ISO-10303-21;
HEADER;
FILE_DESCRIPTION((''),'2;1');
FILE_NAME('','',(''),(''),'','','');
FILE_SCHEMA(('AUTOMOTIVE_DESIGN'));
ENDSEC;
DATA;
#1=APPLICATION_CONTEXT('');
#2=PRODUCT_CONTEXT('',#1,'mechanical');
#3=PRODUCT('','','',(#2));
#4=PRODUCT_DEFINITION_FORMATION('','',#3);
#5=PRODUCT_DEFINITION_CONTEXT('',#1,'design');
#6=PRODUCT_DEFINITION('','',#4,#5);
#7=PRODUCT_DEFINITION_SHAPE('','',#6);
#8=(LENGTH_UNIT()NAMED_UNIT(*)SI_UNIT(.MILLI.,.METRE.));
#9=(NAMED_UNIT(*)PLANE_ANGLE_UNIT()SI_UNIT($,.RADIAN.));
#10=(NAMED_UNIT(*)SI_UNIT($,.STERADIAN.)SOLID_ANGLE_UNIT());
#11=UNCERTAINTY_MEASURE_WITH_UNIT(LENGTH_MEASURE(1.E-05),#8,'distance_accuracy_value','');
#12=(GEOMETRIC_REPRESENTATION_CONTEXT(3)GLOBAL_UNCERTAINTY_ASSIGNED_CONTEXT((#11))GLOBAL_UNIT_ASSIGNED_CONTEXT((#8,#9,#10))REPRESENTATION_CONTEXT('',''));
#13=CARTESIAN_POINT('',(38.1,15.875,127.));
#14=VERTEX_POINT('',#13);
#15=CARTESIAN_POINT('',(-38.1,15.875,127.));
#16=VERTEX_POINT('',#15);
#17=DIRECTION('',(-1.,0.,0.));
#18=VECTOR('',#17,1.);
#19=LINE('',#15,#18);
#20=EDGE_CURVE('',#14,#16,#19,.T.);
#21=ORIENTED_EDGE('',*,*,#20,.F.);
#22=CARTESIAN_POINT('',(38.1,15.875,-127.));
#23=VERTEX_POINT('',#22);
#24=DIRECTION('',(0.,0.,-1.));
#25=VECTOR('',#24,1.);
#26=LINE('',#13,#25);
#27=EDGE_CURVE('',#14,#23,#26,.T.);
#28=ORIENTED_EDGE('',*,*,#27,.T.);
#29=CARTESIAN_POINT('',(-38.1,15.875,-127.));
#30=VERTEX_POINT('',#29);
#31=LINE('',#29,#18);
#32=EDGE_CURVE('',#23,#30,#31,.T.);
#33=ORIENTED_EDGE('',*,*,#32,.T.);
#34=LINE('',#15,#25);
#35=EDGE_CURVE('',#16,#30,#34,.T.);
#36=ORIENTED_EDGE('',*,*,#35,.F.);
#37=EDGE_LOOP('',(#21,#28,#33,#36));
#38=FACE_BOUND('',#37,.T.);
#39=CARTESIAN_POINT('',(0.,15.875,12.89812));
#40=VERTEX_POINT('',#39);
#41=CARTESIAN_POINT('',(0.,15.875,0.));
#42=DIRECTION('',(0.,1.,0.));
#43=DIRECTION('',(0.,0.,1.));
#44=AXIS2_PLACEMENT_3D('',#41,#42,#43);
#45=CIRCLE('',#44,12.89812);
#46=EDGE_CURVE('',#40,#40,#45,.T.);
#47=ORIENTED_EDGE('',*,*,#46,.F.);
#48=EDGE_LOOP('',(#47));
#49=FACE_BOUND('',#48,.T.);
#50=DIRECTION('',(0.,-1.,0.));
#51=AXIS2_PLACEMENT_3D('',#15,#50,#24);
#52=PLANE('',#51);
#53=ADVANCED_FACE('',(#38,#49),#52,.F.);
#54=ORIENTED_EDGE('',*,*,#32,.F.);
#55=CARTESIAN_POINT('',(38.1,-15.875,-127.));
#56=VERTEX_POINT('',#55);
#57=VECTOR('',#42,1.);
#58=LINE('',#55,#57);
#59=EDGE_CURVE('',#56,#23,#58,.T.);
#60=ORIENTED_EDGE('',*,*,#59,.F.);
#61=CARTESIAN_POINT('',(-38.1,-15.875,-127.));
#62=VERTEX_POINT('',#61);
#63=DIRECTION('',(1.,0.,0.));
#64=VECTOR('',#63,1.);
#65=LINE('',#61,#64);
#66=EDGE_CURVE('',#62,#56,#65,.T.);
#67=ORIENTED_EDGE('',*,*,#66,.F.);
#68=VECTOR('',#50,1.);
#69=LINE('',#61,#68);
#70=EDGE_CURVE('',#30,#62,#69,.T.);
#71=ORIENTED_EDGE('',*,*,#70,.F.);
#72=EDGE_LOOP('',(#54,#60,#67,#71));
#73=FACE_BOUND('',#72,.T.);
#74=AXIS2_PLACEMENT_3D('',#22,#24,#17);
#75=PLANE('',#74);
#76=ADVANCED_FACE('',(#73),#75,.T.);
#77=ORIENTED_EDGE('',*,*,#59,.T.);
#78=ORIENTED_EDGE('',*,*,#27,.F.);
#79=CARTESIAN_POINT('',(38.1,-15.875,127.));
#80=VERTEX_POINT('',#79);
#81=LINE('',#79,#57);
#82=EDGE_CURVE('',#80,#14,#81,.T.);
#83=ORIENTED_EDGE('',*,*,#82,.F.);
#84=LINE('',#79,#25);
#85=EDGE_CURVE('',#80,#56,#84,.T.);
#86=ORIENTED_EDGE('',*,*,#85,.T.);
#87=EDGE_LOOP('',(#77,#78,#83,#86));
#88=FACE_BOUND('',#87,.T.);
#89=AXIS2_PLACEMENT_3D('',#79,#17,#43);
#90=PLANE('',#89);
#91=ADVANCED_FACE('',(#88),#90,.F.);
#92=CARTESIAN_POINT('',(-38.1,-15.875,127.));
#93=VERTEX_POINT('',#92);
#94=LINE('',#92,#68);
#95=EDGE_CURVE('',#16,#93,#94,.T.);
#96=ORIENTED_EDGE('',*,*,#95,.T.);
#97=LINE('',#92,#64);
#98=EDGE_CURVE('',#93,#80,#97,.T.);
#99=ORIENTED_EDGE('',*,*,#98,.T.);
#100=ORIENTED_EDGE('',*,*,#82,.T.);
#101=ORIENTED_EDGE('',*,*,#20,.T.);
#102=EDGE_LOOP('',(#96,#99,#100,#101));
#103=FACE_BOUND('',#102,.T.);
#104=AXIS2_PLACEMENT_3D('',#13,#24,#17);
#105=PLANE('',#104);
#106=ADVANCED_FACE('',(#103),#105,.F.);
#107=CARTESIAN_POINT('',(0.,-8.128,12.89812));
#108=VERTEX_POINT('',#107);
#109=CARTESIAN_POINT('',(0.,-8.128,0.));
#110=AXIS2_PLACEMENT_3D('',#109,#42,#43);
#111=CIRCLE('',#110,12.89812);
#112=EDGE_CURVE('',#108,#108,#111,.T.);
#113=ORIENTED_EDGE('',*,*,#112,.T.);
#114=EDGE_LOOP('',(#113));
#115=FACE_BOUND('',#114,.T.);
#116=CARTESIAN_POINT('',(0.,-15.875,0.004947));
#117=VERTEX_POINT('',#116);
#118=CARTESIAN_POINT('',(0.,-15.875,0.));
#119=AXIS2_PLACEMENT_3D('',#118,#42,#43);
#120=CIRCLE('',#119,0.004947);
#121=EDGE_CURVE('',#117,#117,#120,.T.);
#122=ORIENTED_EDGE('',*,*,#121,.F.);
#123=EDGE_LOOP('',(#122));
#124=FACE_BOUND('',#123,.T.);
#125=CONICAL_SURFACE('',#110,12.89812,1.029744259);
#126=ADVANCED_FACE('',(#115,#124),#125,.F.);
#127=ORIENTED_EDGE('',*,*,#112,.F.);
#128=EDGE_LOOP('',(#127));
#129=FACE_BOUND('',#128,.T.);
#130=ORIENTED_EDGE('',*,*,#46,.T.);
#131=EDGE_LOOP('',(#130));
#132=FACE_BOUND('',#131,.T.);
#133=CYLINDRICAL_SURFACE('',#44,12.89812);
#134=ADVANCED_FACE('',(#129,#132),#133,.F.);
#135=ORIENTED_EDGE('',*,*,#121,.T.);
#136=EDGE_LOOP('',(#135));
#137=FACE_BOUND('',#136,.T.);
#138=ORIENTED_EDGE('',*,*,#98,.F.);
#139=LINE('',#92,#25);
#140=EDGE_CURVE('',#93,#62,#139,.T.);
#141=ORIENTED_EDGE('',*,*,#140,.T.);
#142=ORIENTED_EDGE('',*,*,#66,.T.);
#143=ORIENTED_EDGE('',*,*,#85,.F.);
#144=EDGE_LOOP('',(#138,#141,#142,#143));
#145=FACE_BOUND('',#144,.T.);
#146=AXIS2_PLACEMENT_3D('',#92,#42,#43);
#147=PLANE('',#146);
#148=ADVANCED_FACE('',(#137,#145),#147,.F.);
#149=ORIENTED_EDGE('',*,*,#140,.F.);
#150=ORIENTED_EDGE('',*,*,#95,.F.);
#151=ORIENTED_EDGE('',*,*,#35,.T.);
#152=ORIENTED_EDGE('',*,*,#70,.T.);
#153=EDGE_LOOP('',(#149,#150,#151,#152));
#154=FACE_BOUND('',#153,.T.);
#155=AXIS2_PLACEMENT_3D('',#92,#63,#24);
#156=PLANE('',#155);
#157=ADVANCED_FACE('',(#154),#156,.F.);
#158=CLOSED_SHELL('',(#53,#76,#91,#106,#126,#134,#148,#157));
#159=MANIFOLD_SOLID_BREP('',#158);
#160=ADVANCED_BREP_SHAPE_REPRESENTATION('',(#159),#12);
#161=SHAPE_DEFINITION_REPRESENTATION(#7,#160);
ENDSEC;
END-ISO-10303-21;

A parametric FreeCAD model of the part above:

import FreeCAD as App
import Part
import Sketcher

V = App.Vector
Q = App.Units.Quantity

doc = App.newDocument("Part")
params = doc.addObject("Spreadsheet::Sheet", "Params")
for row, (alias, value) in enumerate([
    ("sketch1_width", "3 in"),
    ("sketch1_height", "1.25 in"),
    ("pad1_length", "10 in"),
    ("hole_diameter", "1.0156 in"),
    ("hole_depth", "0.945 in"),
], start=1):
    params.set(f"A{row}", alias)
    params.set(f"B{row}", "=" + value)
    params.setAlias(f"B{row}", alias)

body = doc.addObject("PartDesign::Body", "Body")

sketch1 = doc.addObject("Sketcher::SketchObject", "Sketch")
body.addObject(sketch1)
sketch1.AttachmentSupport = (doc.XY_Plane, [""])
sketch1.MapMode = "FlatFace"
sketch1.addGeometry(Part.LineSegment(V(-38.1, 15.875, 0), V(-38.1, -15.875, 0)), False)
sketch1.addGeometry(Part.LineSegment(V(-38.1, -15.875, 0), V(38.1, -15.875, 0)), False)
sketch1.addGeometry(Part.LineSegment(V(38.1, -15.875, 0), V(38.1, 15.875, 0)), False)
sketch1.addGeometry(Part.LineSegment(V(38.1, 15.875, 0), V(-38.1, 15.875, 0)), False)
sketch1.addConstraint(Sketcher.Constraint("Coincident", 0, 2, 1, 1))
sketch1.addConstraint(Sketcher.Constraint("Coincident", 1, 2, 2, 1))
sketch1.addConstraint(Sketcher.Constraint("Coincident", 2, 2, 3, 1))
sketch1.addConstraint(Sketcher.Constraint("Coincident", 3, 2, 0, 1))
sketch1.addConstraint(Sketcher.Constraint("Vertical", 0))
sketch1.addConstraint(Sketcher.Constraint("Horizontal", 1))
sketch1.addConstraint(Sketcher.Constraint("Vertical", 2))
sketch1.addConstraint(Sketcher.Constraint("Horizontal", 3))
sketch1.addConstraint(Sketcher.Constraint("Symmetric", 0, 2, 2, 2, -1, 1))
sketch1.addConstraint(Sketcher.Constraint("DistanceX", 1, 1, 1, 2, Q("3 in")))
sketch1.addConstraint(Sketcher.Constraint("DistanceY", 0, 2, 0, 1, Q("1.25 in")))
sketch1.setExpression("Constraints[9]", "Params.sketch1_width")
sketch1.setExpression("Constraints[10]", "Params.sketch1_height")
pad1 = doc.addObject("PartDesign::Pad", "Pad")
body.addObject(pad1)
pad1.Profile = sketch1
pad1.setExpression("Length", "Params.pad1_length")
pad1.Midplane = True

sketch2 = doc.addObject("Sketcher::SketchObject", "Sketch001")
body.addObject(sketch2)
sketch2.AttachmentSupport = (doc.XZ_Plane, [""])
sketch2.MapMode = "FlatFace"
sketch2.AttachmentOffset = App.Placement(V(0, 0, -0.625 * 25.4), App.Rotation())
sketch2.addGeometry(Part.Circle(V(0, 0, 0), V(0, 0, 1), 12.89812), False)
sketch2.addConstraint(Sketcher.Constraint("Coincident", 0, 3, -1, 1))
sketch2.addConstraint(Sketcher.Constraint("Diameter", 0, Q("1.0156 in")))
doc.recompute()
hole = doc.addObject("PartDesign::Hole", "Hole")
body.addObject(hole)
hole.Profile = sketch2
hole.ThreadType = "None"
hole.setExpression("Diameter", "Params.hole_diameter")
hole.DepthType = "Dimension"
hole.setExpression("Depth", "Params.hole_depth")
hole.DrillPoint = "Angled"
hole.DrillPointAngle = 118
hole.Reversed = True

doc.recompute()
